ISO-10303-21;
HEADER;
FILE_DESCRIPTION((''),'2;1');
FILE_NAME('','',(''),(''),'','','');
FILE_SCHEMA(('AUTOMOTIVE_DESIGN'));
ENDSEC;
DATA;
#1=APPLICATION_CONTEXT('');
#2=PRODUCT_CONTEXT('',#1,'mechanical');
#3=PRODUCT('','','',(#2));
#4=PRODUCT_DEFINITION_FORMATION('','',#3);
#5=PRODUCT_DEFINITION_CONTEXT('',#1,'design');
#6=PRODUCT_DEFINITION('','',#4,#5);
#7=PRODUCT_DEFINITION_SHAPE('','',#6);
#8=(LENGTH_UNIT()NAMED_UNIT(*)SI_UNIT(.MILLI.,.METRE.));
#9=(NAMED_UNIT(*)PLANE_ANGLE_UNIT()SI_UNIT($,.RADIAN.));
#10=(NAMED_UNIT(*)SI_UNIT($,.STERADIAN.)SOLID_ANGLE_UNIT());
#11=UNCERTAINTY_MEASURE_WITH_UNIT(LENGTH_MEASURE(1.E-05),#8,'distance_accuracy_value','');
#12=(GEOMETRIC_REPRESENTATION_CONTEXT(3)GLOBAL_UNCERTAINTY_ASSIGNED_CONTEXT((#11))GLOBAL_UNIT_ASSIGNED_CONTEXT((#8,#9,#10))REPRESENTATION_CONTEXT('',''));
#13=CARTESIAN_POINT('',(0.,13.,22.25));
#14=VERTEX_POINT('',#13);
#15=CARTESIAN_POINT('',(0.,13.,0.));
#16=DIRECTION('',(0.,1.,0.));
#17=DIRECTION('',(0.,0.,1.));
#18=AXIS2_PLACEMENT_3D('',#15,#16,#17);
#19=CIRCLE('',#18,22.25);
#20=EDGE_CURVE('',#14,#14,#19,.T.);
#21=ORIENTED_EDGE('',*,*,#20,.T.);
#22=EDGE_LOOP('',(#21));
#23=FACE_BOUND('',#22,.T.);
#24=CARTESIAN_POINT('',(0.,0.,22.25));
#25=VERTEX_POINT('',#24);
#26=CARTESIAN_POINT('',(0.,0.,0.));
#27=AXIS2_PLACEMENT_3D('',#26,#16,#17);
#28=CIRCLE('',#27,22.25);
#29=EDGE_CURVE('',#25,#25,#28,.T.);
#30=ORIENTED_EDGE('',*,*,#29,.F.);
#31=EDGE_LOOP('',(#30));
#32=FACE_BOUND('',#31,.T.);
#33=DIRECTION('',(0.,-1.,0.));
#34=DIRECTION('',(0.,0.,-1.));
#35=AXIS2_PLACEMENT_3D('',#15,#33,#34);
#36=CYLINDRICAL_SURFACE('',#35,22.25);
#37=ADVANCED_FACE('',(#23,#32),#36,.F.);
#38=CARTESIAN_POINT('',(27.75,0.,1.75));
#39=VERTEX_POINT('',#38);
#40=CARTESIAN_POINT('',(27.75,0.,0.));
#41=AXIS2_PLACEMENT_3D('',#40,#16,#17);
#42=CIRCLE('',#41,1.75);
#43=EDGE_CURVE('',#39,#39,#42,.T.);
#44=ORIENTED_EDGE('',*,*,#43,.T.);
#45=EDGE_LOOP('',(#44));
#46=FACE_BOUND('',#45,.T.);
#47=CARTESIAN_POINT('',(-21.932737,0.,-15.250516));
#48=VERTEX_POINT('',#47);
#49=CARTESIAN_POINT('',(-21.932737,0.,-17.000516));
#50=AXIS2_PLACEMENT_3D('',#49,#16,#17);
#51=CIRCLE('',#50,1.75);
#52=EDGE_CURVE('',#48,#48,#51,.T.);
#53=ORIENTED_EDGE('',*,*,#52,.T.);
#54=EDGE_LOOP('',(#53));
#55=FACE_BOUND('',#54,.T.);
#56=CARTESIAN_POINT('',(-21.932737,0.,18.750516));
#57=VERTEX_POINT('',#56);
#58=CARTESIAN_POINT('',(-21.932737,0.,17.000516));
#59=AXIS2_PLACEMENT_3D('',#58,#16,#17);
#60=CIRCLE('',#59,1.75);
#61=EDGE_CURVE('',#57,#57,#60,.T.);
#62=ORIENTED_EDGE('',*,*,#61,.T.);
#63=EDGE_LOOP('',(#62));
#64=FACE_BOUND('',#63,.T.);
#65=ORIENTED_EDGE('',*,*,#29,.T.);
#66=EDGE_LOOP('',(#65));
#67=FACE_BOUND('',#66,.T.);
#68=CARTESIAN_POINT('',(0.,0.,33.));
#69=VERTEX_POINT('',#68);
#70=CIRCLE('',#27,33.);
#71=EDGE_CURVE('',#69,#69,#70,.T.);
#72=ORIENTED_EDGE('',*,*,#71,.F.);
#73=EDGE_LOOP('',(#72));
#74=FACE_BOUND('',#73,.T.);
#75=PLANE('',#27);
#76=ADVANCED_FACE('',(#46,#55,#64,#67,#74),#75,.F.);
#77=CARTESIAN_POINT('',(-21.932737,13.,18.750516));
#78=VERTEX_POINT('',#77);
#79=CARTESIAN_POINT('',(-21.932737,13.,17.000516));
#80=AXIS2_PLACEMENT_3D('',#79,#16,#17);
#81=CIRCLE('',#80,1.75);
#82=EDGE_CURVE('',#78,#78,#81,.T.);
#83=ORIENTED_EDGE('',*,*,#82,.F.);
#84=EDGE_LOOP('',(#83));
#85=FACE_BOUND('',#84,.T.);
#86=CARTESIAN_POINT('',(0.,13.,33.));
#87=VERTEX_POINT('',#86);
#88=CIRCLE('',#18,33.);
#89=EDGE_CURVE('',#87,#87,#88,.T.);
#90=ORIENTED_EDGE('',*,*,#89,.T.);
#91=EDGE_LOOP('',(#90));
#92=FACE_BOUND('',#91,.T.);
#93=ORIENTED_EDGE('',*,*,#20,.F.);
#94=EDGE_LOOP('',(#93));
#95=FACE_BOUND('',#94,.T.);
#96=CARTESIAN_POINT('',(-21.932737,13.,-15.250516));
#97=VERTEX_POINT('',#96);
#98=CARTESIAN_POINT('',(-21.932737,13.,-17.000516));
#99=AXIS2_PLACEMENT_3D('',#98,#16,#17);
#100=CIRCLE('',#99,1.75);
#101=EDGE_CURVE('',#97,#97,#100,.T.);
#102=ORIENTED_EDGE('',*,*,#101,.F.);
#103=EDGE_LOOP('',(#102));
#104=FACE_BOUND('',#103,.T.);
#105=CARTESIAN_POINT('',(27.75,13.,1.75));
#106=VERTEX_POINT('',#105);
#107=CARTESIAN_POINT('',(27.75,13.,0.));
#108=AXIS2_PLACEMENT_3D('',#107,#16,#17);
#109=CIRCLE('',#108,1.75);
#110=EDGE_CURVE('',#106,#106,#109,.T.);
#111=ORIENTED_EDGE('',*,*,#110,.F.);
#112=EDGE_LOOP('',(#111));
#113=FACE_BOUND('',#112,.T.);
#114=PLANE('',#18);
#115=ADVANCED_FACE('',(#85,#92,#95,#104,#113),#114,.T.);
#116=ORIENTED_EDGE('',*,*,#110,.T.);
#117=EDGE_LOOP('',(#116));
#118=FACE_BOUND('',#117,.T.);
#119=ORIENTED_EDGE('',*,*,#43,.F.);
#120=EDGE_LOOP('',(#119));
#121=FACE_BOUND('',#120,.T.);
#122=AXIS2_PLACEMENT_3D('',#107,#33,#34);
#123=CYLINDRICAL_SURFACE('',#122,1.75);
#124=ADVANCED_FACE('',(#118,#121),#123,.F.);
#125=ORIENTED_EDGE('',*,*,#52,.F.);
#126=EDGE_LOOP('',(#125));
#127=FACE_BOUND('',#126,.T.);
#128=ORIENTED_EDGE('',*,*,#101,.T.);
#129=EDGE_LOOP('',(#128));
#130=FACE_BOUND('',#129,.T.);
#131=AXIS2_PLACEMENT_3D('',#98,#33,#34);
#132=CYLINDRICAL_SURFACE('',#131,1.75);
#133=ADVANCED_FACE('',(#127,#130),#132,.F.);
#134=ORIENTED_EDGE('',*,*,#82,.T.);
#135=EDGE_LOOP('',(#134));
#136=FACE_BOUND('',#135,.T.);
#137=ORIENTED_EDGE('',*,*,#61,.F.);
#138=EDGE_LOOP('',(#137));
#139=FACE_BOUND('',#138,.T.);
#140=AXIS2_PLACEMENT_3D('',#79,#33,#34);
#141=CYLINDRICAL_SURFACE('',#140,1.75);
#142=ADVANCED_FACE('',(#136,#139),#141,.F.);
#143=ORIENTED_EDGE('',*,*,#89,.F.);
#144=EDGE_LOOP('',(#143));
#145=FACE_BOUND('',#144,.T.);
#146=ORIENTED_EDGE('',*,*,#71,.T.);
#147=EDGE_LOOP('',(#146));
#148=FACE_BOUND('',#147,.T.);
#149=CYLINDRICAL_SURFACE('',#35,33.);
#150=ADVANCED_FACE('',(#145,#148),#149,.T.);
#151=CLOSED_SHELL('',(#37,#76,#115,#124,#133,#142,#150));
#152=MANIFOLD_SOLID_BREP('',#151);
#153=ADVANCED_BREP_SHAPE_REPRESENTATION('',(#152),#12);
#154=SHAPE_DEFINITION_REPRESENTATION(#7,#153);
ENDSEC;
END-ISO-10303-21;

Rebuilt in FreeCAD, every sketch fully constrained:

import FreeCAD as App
import Part
import Sketcher

V = App.Vector

doc = App.newDocument("Part")
body = doc.addObject("PartDesign::Body", "Body")

sketch1 = doc.addObject("Sketcher::SketchObject", "Sketch")
body.addObject(sketch1)
sketch1.AttachmentSupport = (doc.XZ_Plane, [""])
sketch1.MapMode = "FlatFace"
sketch1.addGeometry([
    Part.Circle(V(0, 0, 0), V(0, 0, 1), 33),
    Part.Circle(V(-21.9, 17, 0), V(0, 0, 1), 1.8),
    Part.Circle(V(0, 0, 0), V(0, 0, 1), 22.2),
    Part.Circle(V(-21.9, -17, 0), V(0, 0, 1), 1.8),
    Part.Circle(V(27.8, 0, 0), V(0, 0, 1), 1.8),
], False)
sketch1.addConstraint([
    Sketcher.Constraint("Coincident", 0, 3, -1, 1),
    Sketcher.Constraint("Coincident", 2, 3, -1, 1),
    Sketcher.Constraint("Equal", 1, 3),
    Sketcher.Constraint("Equal", 3, 4),
    Sketcher.Constraint("Symmetric", 1, 3, 3, 3, -1),
    Sketcher.Constraint("PointOnObject", 4, 3, -1),
    Sketcher.Constraint("Diameter", 0, 66.0),
    Sketcher.Constraint("Diameter", 1, 3.5),
    Sketcher.Constraint("Diameter", 2, 44.5),
    Sketcher.Constraint("DistanceX", -1, 1, 4, 3, 27.75),
    Sketcher.Constraint("DistanceY", 3, 3, 1, 3, 34.001032),
    Sketcher.Constraint("DistanceX", 1, 3, -1, 1, 21.932737),
])
pad1 = doc.addObject("PartDesign::Pad", "Pad")
body.addObject(pad1)
pad1.Profile = sketch1
pad1.Length = 13
pad1.Reversed = True

doc.recompute()
